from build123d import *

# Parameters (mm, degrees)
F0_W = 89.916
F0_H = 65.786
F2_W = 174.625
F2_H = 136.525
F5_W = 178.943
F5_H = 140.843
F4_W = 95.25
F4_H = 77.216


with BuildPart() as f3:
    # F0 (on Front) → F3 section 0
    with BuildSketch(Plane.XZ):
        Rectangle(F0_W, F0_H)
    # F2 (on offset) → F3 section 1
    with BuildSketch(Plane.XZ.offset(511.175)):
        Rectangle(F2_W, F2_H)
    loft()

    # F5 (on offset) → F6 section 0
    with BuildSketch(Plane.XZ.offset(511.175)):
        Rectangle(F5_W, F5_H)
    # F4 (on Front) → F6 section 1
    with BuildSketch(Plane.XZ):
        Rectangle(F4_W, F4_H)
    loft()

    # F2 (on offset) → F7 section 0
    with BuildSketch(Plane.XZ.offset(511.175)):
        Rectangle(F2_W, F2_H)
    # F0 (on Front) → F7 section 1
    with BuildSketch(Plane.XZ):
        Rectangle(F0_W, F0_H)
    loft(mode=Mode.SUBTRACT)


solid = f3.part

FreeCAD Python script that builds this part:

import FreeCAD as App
import Part
import Sketcher
from FreeCAD import Vector
Q = App.Units.Quantity


def add_polygon(sketch, points):
    """Adds a closed chain of lines whose ends are joined by coincident constraints."""
    first, n = sketch.GeometryCount, len(points)
    for a, b in zip(points, points[1:] + points[:1]):
        sketch.addGeometry(Part.LineSegment(App.Vector(*a, 0), App.Vector(*b, 0)), False)
    for i in range(n):
        sketch.addConstraint(Sketcher.Constraint("Coincident", first + i, 2, first + (i + 1) % n, 1))

doc = App.newDocument("Part")
body = doc.addObject("PartDesign::Body", "Body")

sketch1 = body.newObject("Sketcher::SketchObject", "Sketch")
sketch1.AttachmentSupport = (doc.getObject("XZ_Plane"), [""])
sketch1.MapMode = "FlatFace"
add_polygon(sketch1, [(-44.958, 32.893), (-44.958, -32.893), (44.958, -32.893), (44.958, 32.893)])
sketch1.addConstraint(Sketcher.Constraint("Vertical", 0))
sketch1.addConstraint(Sketcher.Constraint("Horizontal", 1))
sketch1.addConstraint(Sketcher.Constraint("Vertical", 2))
sketch1.addConstraint(Sketcher.Constraint("Horizontal", 3))
sketch1.addConstraint(Sketcher.Constraint("Symmetric", 0, 2, 2, 2, -1, 1))
sketch1.addConstraint(Sketcher.Constraint("DistanceX", 1, 1, 1, 2, Q("3.54 in")))
sketch1.addConstraint(Sketcher.Constraint("DistanceY", 0, 2, 0, 1, Q("2.59 in")))

sketch2 = body.newObject("Sketcher::SketchObject", "Sketch001")
sketch2.AttachmentSupport = (doc.getObject("XZ_Plane"), [""])
sketch2.MapMode = "FlatFace"
sketch2.AttachmentOffset = App.Placement(Vector(0, 0, 20.125 * 25.4), App.Rotation())
add_polygon(sketch2, [(-87.3125, 68.2625), (-87.3125, -68.2625), (87.3125, -68.2625), (87.3125, 68.2625)])
sketch2.addConstraint(Sketcher.Constraint("Vertical", 0))
sketch2.addConstraint(Sketcher.Constraint("Horizontal", 1))
sketch2.addConstraint(Sketcher.Constraint("Vertical", 2))
sketch2.addConstraint(Sketcher.Constraint("Horizontal", 3))
sketch2.addConstraint(Sketcher.Constraint("Symmetric", 0, 2, 2, 2, -1, 1))
sketch2.addConstraint(Sketcher.Constraint("DistanceX", 1, 1, 1, 2, Q("6.875 in")))
sketch2.addConstraint(Sketcher.Constraint("DistanceY", 0, 2, 0, 1, Q("5.375 in")))

additiveloft = body.newObject("PartDesign::AdditiveLoft", "AdditiveLoft")
additiveloft.Profile = sketch1
additiveloft.Sections = [sketch2]

sketch3 = body.newObject("Sketcher::SketchObject", "Sketch002")
sketch3.AttachmentSupport = (doc.getObject("XZ_Plane"), [""])
sketch3.MapMode = "FlatFace"
sketch3.AttachmentOffset = App.Placement(Vector(0, 0, 20.125 * 25.4), App.Rotation())
add_polygon(sketch3, [(-89.4715, 70.4215), (-89.4715, -70.4215), (89.4715, -70.4215), (89.4715, 70.4215)])
sketch3.addConstraint(Sketcher.Constraint("Vertical", 0))
sketch3.addConstraint(Sketcher.Constraint("Horizontal", 1))
sketch3.addConstraint(Sketcher.Constraint("Vertical", 2))
sketch3.addConstraint(Sketcher.Constraint("Horizontal", 3))
sketch3.addConstraint(Sketcher.Constraint("Symmetric", 0, 2, 2, 2, -1, 1))
sketch3.addConstraint(Sketcher.Constraint("DistanceX", 1, 1, 1, 2, Q("7.045 in")))
sketch3.addConstraint(Sketcher.Constraint("DistanceY", 0, 2, 0, 1, Q("5.545 in")))

sketch4 = body.newObject("Sketcher::SketchObject", "Sketch003")
sketch4.AttachmentSupport = (doc.getObject("XZ_Plane"), [""])
sketch4.MapMode = "FlatFace"
add_polygon(sketch4, [(-47.625, 38.608), (-47.625, -38.608), (47.625, -38.608), (47.625, 38.608)])
sketch4.addConstraint(Sketcher.Constraint("Vertical", 0))
sketch4.addConstraint(Sketcher.Constraint("Horizontal", 1))
sketch4.addConstraint(Sketcher.Constraint("Vertical", 2))
sketch4.addConstraint(Sketcher.Constraint("Horizontal", 3))
sketch4.addConstraint(Sketcher.Constraint("Symmetric", 0, 2, 2, 2, -1, 1))
sketch4.addConstraint(Sketcher.Constraint("DistanceX", 1, 1, 1, 2, Q("3.75 in")))
sketch4.addConstraint(Sketcher.Constraint("DistanceY", 0, 2, 0, 1, Q("3.04 in")))

additiveloft2 = body.newObject("PartDesign::AdditiveLoft", "AdditiveLoft001")
additiveloft2.Profile = sketch3
additiveloft2.Sections = [sketch4]

sketch5 = body.newObject("Sketcher::SketchObject", "Sketch004")
sketch5.AttachmentSupport = (doc.getObject("XZ_Plane"), [""])
sketch5.MapMode = "FlatFace"
sketch5.AttachmentOffset = App.Placement(Vector(0, 0, 20.125 * 25.4), App.Rotation())
add_polygon(sketch5, [(-87.3125, 68.2625), (-87.3125, -68.2625), (87.3125, -68.2625), (87.3125, 68.2625)])
sketch5.addConstraint(Sketcher.Constraint("Vertical", 0))
sketch5.addConstraint(Sketcher.Constraint("Horizontal", 1))
sketch5.addConstraint(Sketcher.Constraint("Vertical", 2))
sketch5.addConstraint(Sketcher.Constraint("Horizontal", 3))
sketch5.addConstraint(Sketcher.Constraint("Symmetric", 0, 2, 2, 2, -1, 1))
sketch5.addConstraint(Sketcher.Constraint("DistanceX", 1, 1, 1, 2, Q("6.875 in")))
sketch5.addConstraint(Sketcher.Constraint("DistanceY", 0, 2, 0, 1, Q("5.375 in")))

sketch6 = body.newObject("Sketcher::SketchObject", "Sketch005")
sketch6.AttachmentSupport = (doc.getObject("XZ_Plane"), [""])
sketch6.MapMode = "FlatFace"
add_polygon(sketch6, [(-44.958, 32.893), (-44.958, -32.893), (44.958, -32.893), (44.958, 32.893)])
sketch6.addConstraint(Sketcher.Constraint("Vertical", 0))
sketch6.addConstraint(Sketcher.Constraint("Horizontal", 1))
sketch6.addConstraint(Sketcher.Constraint("Vertical", 2))
sketch6.addConstraint(Sketcher.Constraint("Horizontal", 3))
sketch6.addConstraint(Sketcher.Constraint("Symmetric", 0, 2, 2, 2, -1, 1))
sketch6.addConstraint(Sketcher.Constraint("DistanceX", 1, 1, 1, 2, Q("3.54 in")))
sketch6.addConstraint(Sketcher.Constraint("DistanceY", 0, 2, 0, 1, Q("2.59 in")))

subtractiveloft = body.newObject("PartDesign::SubtractiveLoft", "SubtractiveLoft")
subtractiveloft.Profile = sketch5
subtractiveloft.Sections = [sketch6]

doc.recompute()
